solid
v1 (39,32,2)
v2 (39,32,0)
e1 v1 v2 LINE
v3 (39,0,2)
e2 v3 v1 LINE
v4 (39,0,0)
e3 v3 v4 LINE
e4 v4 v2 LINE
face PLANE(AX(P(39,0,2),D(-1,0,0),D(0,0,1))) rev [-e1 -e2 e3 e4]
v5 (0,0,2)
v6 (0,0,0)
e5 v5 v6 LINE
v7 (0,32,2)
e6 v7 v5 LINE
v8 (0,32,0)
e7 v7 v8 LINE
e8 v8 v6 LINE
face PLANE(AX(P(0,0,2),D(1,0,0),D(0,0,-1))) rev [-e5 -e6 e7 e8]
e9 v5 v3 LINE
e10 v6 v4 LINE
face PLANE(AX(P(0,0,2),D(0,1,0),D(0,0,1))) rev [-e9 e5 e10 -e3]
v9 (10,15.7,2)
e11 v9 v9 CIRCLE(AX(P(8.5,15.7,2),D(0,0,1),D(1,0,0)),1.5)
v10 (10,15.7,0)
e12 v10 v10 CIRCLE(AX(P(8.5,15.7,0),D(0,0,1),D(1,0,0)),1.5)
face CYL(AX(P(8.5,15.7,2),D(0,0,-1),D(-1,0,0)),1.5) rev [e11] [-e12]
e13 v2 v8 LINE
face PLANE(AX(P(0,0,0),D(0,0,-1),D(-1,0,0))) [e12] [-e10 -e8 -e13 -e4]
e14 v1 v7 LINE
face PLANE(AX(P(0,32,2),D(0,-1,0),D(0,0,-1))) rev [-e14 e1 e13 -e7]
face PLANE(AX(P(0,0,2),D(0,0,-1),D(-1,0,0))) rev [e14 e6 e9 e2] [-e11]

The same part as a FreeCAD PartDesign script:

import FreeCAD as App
import Part
import Sketcher
Q = App.Units.Quantity


def add_polygon(sketch, points):
    """Adds a closed chain of lines whose ends are joined by coincident constraints."""
    first, n = sketch.GeometryCount, len(points)
    for a, b in zip(points, points[1:] + points[:1]):
        sketch.addGeometry(Part.LineSegment(App.Vector(*a, 0), App.Vector(*b, 0)), False)
    for i in range(n):
        sketch.addConstraint(Sketcher.Constraint("Coincident", first + i, 2, first + (i + 1) % n, 1))

doc = App.newDocument("Part")
body = doc.addObject("PartDesign::Body", "Body")

# Sketch on XY plane
sketch1 = body.newObject("Sketcher::SketchObject", "Sketch")
sketch1.AttachmentSupport = (doc.getObject("XY_Plane"), [""])
sketch1.MapMode = "FlatFace"
add_polygon(sketch1, [(0, 32), (0, 0), (39, 0), (39, 32)])  # lines 0-3
sketch1.addGeometry(Part.Circle(App.Vector(8.5, 15.7, 0), App.Vector(0, 0, 1), 1.5), False)  # 4
sketch1.addConstraint([
    Sketcher.Constraint("Vertical", 0),
    Sketcher.Constraint("Horizontal", 1),
    Sketcher.Constraint("Vertical", 2),
    Sketcher.Constraint("Horizontal", 3),
    Sketcher.Constraint("Coincident", 0, 2, -1, 1),
    Sketcher.Constraint("Diameter", 4, Q("3 mm")),
    Sketcher.Constraint("DistanceX", 1, 1, 1, 2, Q("39 mm")),
    Sketcher.Constraint("DistanceY", 0, 2, 0, 1, Q("32 mm")),
    Sketcher.Constraint("DistanceX", -1, 1, 4, 3, Q("8.5 mm")),
    Sketcher.Constraint("DistanceY", -1, 1, 4, 3, Q("15.7 mm")),
])
pad1 = body.newObject("PartDesign::Pad", "Pad")
pad1.Profile = sketch1
pad1.Length = 2

doc.recompute()
